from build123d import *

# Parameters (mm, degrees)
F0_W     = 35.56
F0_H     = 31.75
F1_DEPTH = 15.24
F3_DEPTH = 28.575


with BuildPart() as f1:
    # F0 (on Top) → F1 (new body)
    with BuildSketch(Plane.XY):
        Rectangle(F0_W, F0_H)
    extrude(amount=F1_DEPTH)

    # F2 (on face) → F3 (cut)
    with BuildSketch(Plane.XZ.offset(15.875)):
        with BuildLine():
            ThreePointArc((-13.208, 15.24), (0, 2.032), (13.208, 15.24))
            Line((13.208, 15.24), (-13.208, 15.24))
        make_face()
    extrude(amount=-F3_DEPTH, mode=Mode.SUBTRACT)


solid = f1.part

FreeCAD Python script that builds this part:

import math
import FreeCAD as App
import Part
import Sketcher
from FreeCAD import Vector
Q = App.Units.Quantity


def add_polygon(sketch, points):
    """Adds a closed chain of lines whose ends are joined by coincident constraints."""
    first, n = sketch.GeometryCount, len(points)
    for a, b in zip(points, points[1:] + points[:1]):
        sketch.addGeometry(Part.LineSegment(App.Vector(*a, 0), App.Vector(*b, 0)), False)
    for i in range(n):
        sketch.addConstraint(Sketcher.Constraint("Coincident", first + i, 2, first + (i + 1) % n, 1))

doc = App.newDocument("Part")
body = doc.addObject("PartDesign::Body", "Body")

# Sketch on XY plane
sketch1 = body.newObject("Sketcher::SketchObject", "Sketch")
sketch1.AttachmentSupport = (doc.getObject("XY_Plane"), [""])
sketch1.MapMode = "FlatFace"
add_polygon(sketch1, [(-18, 16), (-18, -16), (18, -16), (18, 16)])  # lines 0-3
sketch1.addConstraint([
    Sketcher.Constraint("Vertical", 0),
    Sketcher.Constraint("Horizontal", 1),
    Sketcher.Constraint("Vertical", 2),
    Sketcher.Constraint("Horizontal", 3),
    Sketcher.Constraint("Symmetric", 0, 2, 2, 2, -1, 1),
    Sketcher.Constraint("DistanceX", 1, 1, 1, 2, Q("1.4 in")),
    Sketcher.Constraint("DistanceY", 0, 2, 0, 1, Q("1.25 in")),
])
pad1 = body.newObject("PartDesign::Pad", "Pad")
pad1.Profile = sketch1
pad1.Length = Q("0.6 in")

# Sketch on XZ plane
sketch2 = body.newObject("Sketcher::SketchObject", "Sketch001")
sketch2.AttachmentSupport = (doc.getObject("XZ_Plane"), [""])
sketch2.MapMode = "FlatFace"
sketch2.AttachmentOffset = App.Placement(Vector(0, 0, 0.625 * 25.4), App.Rotation())
sketch2.addGeometry([
    Part.ArcOfCircle(Part.Circle(Vector(0, 15, 0), Vector(0, 0, 1), 13), math.radians(180), math.radians(360)),
    Part.LineSegment(Vector(13, 15, 0), Vector(-13, 15, 0)),
], False)
sketch2.addConstraint([
    Sketcher.Constraint("Coincident", 0, 1, 1, 2),
    Sketcher.Constraint("Coincident", 1, 1, 0, 2),
    Sketcher.Constraint("Horizontal", 1),
    Sketcher.Constraint("PointOnObject", 0, 3, -2),
    Sketcher.Constraint("Radius", 0, Q("0.52 in")),
    Sketcher.Constraint("DistanceY", -1, 1, 0, 3, Q("0.6 in")),
    Sketcher.Constraint("DistanceY", -1, 1, 0, 1, Q("0.6 in")),
])
pocket1 = body.newObject("PartDesign::Pocket", "Pocket")
pocket1.Profile = sketch2
pocket1.Length = Q("1.125 in")

doc.recompute()
